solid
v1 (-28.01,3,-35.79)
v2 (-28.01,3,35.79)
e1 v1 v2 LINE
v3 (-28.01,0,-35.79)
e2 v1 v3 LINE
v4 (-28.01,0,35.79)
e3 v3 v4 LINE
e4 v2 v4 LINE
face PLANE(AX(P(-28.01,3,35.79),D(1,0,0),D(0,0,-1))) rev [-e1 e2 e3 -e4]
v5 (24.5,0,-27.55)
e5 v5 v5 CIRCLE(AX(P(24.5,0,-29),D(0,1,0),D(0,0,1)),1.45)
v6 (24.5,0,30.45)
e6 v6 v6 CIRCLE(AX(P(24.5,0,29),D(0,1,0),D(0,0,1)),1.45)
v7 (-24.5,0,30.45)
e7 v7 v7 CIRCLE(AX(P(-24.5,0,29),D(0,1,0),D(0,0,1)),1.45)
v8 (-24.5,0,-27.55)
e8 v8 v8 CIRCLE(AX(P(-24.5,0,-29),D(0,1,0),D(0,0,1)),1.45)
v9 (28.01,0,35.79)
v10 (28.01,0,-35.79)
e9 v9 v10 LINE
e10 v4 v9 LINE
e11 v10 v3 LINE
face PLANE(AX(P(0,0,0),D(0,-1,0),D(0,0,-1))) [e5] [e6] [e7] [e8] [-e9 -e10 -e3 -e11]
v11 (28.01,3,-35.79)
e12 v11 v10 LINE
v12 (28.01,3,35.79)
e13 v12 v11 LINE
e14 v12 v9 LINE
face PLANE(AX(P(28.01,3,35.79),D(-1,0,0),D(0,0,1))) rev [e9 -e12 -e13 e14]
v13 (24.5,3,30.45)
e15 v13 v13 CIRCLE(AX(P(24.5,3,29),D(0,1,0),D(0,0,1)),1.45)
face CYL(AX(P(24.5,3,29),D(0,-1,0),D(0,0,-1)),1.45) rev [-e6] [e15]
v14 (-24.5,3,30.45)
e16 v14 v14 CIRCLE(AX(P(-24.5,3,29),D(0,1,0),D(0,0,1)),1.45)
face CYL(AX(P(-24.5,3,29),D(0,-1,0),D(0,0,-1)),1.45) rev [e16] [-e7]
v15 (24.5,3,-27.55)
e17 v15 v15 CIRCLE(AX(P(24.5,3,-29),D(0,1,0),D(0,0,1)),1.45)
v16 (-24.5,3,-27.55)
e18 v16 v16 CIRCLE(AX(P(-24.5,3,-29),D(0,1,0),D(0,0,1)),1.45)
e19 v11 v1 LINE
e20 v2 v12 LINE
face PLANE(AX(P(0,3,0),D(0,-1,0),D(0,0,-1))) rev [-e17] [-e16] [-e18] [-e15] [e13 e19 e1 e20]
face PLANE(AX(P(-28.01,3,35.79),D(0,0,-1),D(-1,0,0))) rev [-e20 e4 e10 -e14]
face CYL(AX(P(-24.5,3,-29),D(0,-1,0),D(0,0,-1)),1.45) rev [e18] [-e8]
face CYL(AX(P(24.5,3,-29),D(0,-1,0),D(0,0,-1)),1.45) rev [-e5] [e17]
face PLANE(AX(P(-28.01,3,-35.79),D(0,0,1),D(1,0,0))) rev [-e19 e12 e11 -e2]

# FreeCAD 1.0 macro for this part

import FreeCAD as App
import Part
import Sketcher
Q = App.Units.Quantity

doc = App.newDocument("Part")
body = doc.addObject("PartDesign::Body", "Body")

sketch1 = body.newObject("Sketcher::SketchObject", "Sketch")
sketch1.AttachmentSupport = (doc.getObject("XZ_Plane"), [""])
sketch1.MapMode = "FlatFace"
sketch1.addGeometry([
    Part.LineSegment(App.Vector(-28, -35.8, 0), App.Vector(-28, 35.8, 0)),
    Part.LineSegment(App.Vector(-28, 35.8, 0), App.Vector(28, 35.8, 0)),
    Part.LineSegment(App.Vector(28, 35.8, 0), App.Vector(28, -35.8, 0)),
    Part.LineSegment(App.Vector(28, -35.8, 0), App.Vector(-28, -35.8, 0)),
    Part.Circle(App.Vector(-24.5, 29, 0), App.Vector(0, 0, 1), 1.4),
    Part.Circle(App.Vector(24.5, 29, 0), App.Vector(0, 0, 1), 1.4),
    Part.Circle(App.Vector(-24.5, -29, 0), App.Vector(0, 0, 1), 1.4),
    Part.Circle(App.Vector(24.5, -29, 0), App.Vector(0, 0, 1), 1.4),
], False)
sketch1.addConstraint([
    Sketcher.Constraint("Coincident", 0, 2, 1, 1),
    Sketcher.Constraint("Coincident", 1, 2, 2, 1),
    Sketcher.Constraint("Coincident", 2, 2, 3, 1),
    Sketcher.Constraint("Coincident", 3, 2, 0, 1),
    Sketcher.Constraint("Vertical", 0),
    Sketcher.Constraint("Horizontal", 1),
    Sketcher.Constraint("Vertical", 2),
    Sketcher.Constraint("Horizontal", 3),
    Sketcher.Constraint("Equal", 4, 5),
    Sketcher.Constraint("Equal", 5, 6),
    Sketcher.Constraint("Equal", 6, 7),
    Sketcher.Constraint("Symmetric", 5, 3, 6, 3, -1, 1),
    Sketcher.Constraint("Symmetric", 4, 3, 7, 3, -1, 1),
    Sketcher.Constraint("Symmetric", 0, 2, 2, 2, -1, 1),
    Sketcher.Constraint("Symmetric", 4, 3, 5, 3, -2),
    Sketcher.Constraint("Diameter", 4, Q("2.9 mm")),
    Sketcher.Constraint("DistanceY", -1, 1, 4, 3, Q("29 mm")),
    Sketcher.Constraint("DistanceX", 4, 3, 5, 3, Q("49 mm")),
    Sketcher.Constraint("DistanceX", 1, 1, 1, 2, Q("56.02 mm")),
    Sketcher.Constraint("DistanceY", 0, 1, 0, 2, Q("71.58 mm")),
])
pad1 = body.newObject("PartDesign::Pad", "Pad")
pad1.Profile = sketch1
pad1.Length = 3
pad1.Reversed = True

doc.recompute()
